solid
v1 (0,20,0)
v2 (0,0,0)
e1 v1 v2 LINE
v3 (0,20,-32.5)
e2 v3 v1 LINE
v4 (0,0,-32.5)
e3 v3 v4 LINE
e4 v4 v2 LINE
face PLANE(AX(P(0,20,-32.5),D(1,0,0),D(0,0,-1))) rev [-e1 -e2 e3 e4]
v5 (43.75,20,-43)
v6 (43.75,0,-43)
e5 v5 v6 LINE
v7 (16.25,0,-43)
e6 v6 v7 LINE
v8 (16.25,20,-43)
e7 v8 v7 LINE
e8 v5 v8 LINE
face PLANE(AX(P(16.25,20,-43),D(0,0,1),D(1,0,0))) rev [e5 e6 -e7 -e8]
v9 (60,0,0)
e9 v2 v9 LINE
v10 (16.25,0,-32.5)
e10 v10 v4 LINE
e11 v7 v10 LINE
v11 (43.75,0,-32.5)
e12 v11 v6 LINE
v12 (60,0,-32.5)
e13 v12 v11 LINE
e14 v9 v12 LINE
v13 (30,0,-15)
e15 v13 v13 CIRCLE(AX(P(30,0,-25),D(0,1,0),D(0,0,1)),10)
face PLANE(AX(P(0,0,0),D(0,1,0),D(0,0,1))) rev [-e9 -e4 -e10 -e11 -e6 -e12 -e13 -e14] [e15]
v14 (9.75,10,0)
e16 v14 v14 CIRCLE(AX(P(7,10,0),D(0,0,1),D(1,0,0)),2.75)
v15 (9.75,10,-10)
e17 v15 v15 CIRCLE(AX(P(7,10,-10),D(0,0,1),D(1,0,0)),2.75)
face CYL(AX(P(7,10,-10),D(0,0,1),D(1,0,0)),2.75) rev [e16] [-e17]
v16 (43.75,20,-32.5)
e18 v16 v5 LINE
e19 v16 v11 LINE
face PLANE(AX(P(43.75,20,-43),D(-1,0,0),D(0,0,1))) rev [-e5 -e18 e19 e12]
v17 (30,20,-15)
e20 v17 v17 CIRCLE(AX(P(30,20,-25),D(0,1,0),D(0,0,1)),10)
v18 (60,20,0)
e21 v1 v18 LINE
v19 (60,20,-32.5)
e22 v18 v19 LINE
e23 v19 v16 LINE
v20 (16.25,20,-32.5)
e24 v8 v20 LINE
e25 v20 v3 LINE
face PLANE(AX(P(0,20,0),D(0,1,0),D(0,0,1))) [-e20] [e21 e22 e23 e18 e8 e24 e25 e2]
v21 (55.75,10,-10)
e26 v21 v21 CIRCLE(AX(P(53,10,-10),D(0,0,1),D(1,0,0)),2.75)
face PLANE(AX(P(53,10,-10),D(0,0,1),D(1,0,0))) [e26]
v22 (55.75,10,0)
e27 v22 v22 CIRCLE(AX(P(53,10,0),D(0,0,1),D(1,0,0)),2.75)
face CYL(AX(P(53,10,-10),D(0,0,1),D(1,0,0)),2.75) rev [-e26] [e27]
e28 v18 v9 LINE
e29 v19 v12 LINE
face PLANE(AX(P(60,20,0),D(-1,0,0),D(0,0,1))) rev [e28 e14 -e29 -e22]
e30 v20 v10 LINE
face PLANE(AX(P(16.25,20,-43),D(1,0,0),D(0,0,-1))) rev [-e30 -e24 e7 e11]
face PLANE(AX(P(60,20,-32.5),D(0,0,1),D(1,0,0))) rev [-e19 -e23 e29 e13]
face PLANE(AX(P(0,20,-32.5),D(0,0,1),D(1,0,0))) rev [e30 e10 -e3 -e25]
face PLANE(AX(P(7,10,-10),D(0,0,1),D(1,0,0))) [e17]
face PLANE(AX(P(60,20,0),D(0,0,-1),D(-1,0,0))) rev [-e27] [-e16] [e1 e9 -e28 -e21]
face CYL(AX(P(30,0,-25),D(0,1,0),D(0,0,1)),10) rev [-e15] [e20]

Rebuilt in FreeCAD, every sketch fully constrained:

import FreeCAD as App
import Part
import Sketcher

V = App.Vector

doc = App.newDocument("Part")
params = doc.addObject("Spreadsheet::Sheet", "Params")
for row, (alias, value) in enumerate([
    ("sketch1_width", "60 mm"),
    ("sketch1_width2", "27.5 mm"),
    ("sketch1_height", "32.5 mm"),
    ("sketch1_height2", "10.5 mm"),
    ("pad1_length", "20 mm"),
    ("sketch2_diameter", "20 mm"),
    ("sketch3_diameter", "5.5 mm"),
    ("pocket2_length", "10 mm"),
], start=1):
    params.set(f"A{row}", alias)
    params.set(f"B{row}", "=" + value)
    params.setAlias(f"B{row}", alias)

body = doc.addObject("PartDesign::Body", "Body")

# Sketch on XZ plane
sketch1 = body.newObject("Sketcher::SketchObject", "Sketch")
sketch1.AttachmentSupport = (doc.getObject("XZ_Plane"), [""])
sketch1.MapMode = "FlatFace"
sketch1.addGeometry(Part.LineSegment(V(0, -32.5, 0), V(0, 0, 0)), False)
sketch1.addGeometry(Part.LineSegment(V(0, 0, 0), V(60, 0, 0)), False)
sketch1.addGeometry(Part.LineSegment(V(60, 0, 0), V(60, -32.5, 0)), False)
sketch1.addGeometry(Part.LineSegment(V(60, -32.5, 0), V(43.75, -32.5, 0)), False)
sketch1.addGeometry(Part.LineSegment(V(43.75, -32.5, 0), V(43.75, -43, 0)), False)
sketch1.addGeometry(Part.LineSegment(V(43.75, -43, 0), V(16.25, -43, 0)), False)
sketch1.addGeometry(Part.LineSegment(V(16.25, -43, 0), V(16.25, -32.5, 0)), False)
sketch1.addGeometry(Part.LineSegment(V(16.25, -32.5, 0), V(0, -32.5, 0)), False)
sketch1.addConstraint(Sketcher.Constraint("Coincident", 0, 2, 1, 1))
sketch1.addConstraint(Sketcher.Constraint("Coincident", 1, 2, 2, 1))
sketch1.addConstraint(Sketcher.Constraint("Coincident", 2, 2, 3, 1))
sketch1.addConstraint(Sketcher.Constraint("Coincident", 3, 2, 4, 1))
sketch1.addConstraint(Sketcher.Constraint("Coincident", 4, 2, 5, 1))
sketch1.addConstraint(Sketcher.Constraint("Coincident", 5, 2, 6, 1))
sketch1.addConstraint(Sketcher.Constraint("Coincident", 6, 2, 7, 1))
sketch1.addConstraint(Sketcher.Constraint("Coincident", 7, 2, 0, 1))
sketch1.addConstraint(Sketcher.Constraint("Vertical", 0))
sketch1.addConstraint(Sketcher.Constraint("Horizontal", 1))
sketch1.addConstraint(Sketcher.Constraint("Vertical", 2))
sketch1.addConstraint(Sketcher.Constraint("Horizontal", 3))
sketch1.addConstraint(Sketcher.Constraint("Vertical", 4))
sketch1.addConstraint(Sketcher.Constraint("Horizontal", 5))
sketch1.addConstraint(Sketcher.Constraint("Vertical", 6))
sketch1.addConstraint(Sketcher.Constraint("Horizontal", 7))
sketch1.addConstraint(Sketcher.Constraint("Coincident", 0, 2, -1, 1))
sketch1.addConstraint(Sketcher.Constraint("Horizontal", 3, 2, 6, 2))
sketch1.addConstraint(Sketcher.Constraint("Equal", 3, 7))
sketch1.addConstraint(Sketcher.Constraint("DistanceX", 1, 1, 1, 2, 60.0))
sketch1.addConstraint(Sketcher.Constraint("DistanceX", 5, 2, 5, 1, 27.5))
sketch1.addConstraint(Sketcher.Constraint("DistanceY", 0, 1, 0, 2, 32.5))
sketch1.addConstraint(Sketcher.Constraint("DistanceY", 4, 2, 4, 1, 10.5))
sketch1.setExpression("Constraints[19]", "Params.sketch1_width")
sketch1.setExpression("Constraints[20]", "Params.sketch1_width2")
sketch1.setExpression("Constraints[21]", "Params.sketch1_height")
sketch1.setExpression("Constraints[22]", "Params.sketch1_height2")
pad1 = body.newObject("PartDesign::Pad", "Pad")
pad1.Profile = sketch1
pad1.setExpression("Length", "Params.pad1_length")
pad1.Reversed = True

# Sketch on XZ plane
sketch2 = body.newObject("Sketcher::SketchObject", "Sketch001")
sketch2.AttachmentSupport = (doc.getObject("XZ_Plane"), [""])
sketch2.MapMode = "FlatFace"
sketch2.AttachmentOffset = App.Placement(V(0, 0, -20), App.Rotation())
sketch2.addGeometry(Part.Circle(V(30, -25, 0), V(0, 0, 1), 10), False)
sketch2.addConstraint(Sketcher.Constraint("Diameter", 0, 20.0))
sketch2.addConstraint(Sketcher.Constraint("DistanceX", -1, 1, 0, 3, 30.0))
sketch2.addConstraint(Sketcher.Constraint("DistanceY", 0, 3, -1, 1, 25.0))
sketch2.setExpression("Constraints[0]", "Params.sketch2_diameter")
pocket1 = body.newObject("PartDesign::Pocket", "Pocket")
pocket1.Profile = sketch2
pocket1.Type = "ThroughAll"
pocket1.Reversed = True

# Sketch on XY plane
sketch3 = body.newObject("Sketcher::SketchObject", "Sketch002")
sketch3.AttachmentSupport = (doc.getObject("XY_Plane"), [""])
sketch3.MapMode = "FlatFace"
sketch3.addGeometry(Part.Circle(V(7, 10, 0), V(0, 0, 1), 2.75), False)
sketch3.addGeometry(Part.Circle(V(53, 10, 0), V(0, 0, 1), 2.75), False)
sketch3.addConstraint(Sketcher.Constraint("Equal", 0, 1))
sketch3.addConstraint(Sketcher.Constraint("Horizontal", 0, 3, 1, 3))
sketch3.addConstraint(Sketcher.Constraint("Diameter", 0, 5.5))
sketch3.addConstraint(Sketcher.Constraint("DistanceX", -1, 1, 0, 3, 7.0))
sketch3.addConstraint(Sketcher.Constraint("DistanceY", -1, 1, 0, 3, 10.0))
sketch3.addConstraint(Sketcher.Constraint("DistanceX", -1, 1, 1, 3, 53.0))
sketch3.setExpression("Constraints[2]", "Params.sketch3_diameter")
pocket2 = body.newObject("PartDesign::Pocket", "Pocket001")
pocket2.Profile = sketch3
pocket2.setExpression("Length", "Params.pocket2_length")

doc.recompute()
